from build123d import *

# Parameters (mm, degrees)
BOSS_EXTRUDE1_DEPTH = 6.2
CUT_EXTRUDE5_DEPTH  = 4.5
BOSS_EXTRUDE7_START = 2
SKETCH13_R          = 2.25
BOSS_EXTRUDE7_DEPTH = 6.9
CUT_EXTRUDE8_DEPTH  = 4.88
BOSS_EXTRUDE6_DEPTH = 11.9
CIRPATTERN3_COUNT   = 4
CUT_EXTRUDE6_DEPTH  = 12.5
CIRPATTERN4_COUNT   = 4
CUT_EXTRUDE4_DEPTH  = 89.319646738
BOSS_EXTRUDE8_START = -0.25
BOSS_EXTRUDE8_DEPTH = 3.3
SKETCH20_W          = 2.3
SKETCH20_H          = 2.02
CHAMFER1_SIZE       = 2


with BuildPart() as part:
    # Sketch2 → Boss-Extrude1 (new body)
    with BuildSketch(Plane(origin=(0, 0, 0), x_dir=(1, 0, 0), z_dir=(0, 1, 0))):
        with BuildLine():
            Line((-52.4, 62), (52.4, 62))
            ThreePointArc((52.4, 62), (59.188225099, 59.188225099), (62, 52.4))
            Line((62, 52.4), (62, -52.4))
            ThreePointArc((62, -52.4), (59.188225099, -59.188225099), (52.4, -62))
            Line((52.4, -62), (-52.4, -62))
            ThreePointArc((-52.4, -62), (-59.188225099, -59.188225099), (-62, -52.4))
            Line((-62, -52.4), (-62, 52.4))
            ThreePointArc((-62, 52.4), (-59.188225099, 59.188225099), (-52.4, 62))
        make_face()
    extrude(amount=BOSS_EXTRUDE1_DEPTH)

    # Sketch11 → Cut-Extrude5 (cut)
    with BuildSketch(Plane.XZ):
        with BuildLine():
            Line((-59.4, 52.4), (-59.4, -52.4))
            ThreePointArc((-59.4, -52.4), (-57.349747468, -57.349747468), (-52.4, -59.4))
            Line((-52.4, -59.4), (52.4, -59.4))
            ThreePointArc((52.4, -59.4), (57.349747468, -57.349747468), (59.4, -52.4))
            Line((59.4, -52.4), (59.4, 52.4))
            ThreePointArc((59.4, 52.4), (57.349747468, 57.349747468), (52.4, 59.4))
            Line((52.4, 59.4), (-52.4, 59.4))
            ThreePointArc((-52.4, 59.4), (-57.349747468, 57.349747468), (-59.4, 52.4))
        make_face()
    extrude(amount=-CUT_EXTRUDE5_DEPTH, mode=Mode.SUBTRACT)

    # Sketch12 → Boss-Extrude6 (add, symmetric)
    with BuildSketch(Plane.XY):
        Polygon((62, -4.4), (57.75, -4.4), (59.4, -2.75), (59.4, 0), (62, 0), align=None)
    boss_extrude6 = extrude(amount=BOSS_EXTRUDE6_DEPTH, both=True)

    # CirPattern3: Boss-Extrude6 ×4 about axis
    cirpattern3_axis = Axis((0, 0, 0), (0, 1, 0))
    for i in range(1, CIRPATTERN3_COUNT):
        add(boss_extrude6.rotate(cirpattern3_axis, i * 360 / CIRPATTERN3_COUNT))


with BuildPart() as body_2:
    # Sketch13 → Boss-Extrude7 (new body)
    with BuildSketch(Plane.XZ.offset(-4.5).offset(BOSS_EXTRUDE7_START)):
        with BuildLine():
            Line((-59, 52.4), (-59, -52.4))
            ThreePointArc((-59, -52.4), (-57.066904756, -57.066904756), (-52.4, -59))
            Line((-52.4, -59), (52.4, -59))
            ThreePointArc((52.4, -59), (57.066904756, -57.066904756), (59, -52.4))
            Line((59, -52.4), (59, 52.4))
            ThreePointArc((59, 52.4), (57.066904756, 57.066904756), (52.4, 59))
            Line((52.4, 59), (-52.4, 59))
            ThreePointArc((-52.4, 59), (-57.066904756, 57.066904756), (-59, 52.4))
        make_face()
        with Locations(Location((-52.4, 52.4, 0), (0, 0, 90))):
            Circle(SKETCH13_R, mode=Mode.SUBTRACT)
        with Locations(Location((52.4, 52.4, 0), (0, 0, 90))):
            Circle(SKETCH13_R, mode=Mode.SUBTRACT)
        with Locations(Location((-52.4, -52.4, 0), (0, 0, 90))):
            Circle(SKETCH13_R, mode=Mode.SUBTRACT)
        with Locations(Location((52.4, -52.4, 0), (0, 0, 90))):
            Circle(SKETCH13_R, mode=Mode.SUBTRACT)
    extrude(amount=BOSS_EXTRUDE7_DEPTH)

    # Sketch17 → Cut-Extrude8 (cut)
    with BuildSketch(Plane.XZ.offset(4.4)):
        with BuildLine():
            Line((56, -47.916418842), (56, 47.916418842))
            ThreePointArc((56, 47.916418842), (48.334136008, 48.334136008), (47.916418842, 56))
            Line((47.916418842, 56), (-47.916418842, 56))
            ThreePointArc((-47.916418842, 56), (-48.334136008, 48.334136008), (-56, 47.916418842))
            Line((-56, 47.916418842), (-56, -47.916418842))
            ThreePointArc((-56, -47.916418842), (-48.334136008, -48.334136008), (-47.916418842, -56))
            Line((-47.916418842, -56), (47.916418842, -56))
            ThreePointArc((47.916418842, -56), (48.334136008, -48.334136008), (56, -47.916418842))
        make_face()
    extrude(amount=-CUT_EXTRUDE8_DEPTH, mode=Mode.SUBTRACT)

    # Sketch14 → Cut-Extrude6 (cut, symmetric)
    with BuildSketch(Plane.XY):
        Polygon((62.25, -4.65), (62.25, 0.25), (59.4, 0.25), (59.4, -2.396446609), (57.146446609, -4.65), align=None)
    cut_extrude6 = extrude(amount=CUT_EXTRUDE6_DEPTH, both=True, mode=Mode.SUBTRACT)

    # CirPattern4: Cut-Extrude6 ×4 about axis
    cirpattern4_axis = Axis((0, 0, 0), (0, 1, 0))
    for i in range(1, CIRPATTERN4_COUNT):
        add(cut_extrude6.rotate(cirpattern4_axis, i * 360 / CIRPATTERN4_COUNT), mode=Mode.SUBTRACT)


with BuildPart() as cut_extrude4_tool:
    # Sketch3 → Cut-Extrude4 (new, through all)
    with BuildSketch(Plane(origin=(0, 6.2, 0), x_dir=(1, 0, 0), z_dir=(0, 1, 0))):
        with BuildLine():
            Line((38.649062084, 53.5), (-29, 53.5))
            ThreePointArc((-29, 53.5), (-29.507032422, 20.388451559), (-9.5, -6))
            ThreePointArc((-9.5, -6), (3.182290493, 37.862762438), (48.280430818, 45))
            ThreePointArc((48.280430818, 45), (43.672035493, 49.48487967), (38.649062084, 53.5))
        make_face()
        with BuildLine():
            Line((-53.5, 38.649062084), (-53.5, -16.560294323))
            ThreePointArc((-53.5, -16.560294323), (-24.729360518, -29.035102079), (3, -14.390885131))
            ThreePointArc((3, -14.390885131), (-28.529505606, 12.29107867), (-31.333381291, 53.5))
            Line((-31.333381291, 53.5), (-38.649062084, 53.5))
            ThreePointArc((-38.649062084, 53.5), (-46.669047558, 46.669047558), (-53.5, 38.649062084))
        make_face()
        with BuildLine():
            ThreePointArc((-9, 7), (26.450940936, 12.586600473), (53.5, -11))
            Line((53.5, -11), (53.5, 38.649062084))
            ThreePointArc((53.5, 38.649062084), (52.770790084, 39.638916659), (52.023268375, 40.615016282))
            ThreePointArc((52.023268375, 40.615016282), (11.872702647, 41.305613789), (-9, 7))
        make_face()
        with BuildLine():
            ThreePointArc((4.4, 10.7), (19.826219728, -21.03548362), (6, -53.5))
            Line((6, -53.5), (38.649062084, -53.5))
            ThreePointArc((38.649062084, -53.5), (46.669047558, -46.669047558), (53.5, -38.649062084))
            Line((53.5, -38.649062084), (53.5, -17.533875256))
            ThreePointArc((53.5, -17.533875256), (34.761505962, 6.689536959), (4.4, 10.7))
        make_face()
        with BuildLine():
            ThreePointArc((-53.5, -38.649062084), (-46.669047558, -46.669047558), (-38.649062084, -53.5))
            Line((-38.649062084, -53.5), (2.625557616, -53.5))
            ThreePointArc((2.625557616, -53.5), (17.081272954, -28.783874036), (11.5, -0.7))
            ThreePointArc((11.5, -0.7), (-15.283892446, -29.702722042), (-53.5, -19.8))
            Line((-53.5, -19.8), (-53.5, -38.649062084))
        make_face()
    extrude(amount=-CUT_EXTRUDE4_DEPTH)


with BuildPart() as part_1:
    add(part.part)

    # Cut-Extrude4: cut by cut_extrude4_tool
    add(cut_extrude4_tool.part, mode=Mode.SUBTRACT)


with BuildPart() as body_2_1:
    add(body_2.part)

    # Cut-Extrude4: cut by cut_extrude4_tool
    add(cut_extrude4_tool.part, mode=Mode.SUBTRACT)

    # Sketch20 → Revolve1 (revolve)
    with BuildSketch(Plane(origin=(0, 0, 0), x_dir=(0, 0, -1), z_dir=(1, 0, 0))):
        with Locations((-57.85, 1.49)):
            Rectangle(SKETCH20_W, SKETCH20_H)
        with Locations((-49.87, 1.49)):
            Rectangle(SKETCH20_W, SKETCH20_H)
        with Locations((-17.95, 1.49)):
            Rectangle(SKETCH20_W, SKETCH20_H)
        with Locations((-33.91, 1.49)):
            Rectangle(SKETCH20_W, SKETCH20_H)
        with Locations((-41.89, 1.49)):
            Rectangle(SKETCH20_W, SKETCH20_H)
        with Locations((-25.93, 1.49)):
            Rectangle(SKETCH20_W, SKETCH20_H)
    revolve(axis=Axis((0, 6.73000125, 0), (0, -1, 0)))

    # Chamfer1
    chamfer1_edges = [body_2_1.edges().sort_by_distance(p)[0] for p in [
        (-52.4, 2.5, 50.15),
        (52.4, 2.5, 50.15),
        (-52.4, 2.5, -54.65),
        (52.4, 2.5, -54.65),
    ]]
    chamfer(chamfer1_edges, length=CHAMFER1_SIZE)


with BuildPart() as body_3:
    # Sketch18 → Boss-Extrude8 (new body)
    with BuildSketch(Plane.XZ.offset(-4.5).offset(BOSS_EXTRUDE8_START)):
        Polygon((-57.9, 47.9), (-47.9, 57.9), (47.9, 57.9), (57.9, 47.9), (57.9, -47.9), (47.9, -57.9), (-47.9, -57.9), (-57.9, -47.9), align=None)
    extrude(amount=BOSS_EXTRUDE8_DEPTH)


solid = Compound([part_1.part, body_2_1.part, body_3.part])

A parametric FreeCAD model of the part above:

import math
import FreeCAD as App
import Part
import Sketcher
Q = App.Units.Quantity


def edges_at(feature, points):
    """Names of the edges that pass closest to the given points."""
    edges = feature.Shape.Edges
    near = lambda p: min(range(len(edges)), key=lambda i: edges[i].distToShape(Part.Vertex(*p))[0])
    return sorted({f"Edge{near(p) + 1}" for p in points})

doc = App.newDocument("Part")
body = doc.addObject("PartDesign::Body", "Body")

# Sketch on XZ plane
sketch1 = body.newObject("Sketcher::SketchObject", "Sketch")
sketch1.AttachmentSupport = (doc.getObject("XZ_Plane"), [""])
sketch1.MapMode = "FlatFace"
sketch1.addGeometry([
    Part.LineSegment(App.Vector(52, -62, 0), App.Vector(-52, -62, 0)),  # 0
    Part.ArcOfCircle(Part.Circle(App.Vector(-52, -52, 0), App.Vector(0, 0, 1), 10), math.radians(-180), math.radians(-90)),  # 1
    Part.LineSegment(App.Vector(-62, -52, 0), App.Vector(-62, 52, 0)),  # 2
    Part.ArcOfCircle(Part.Circle(App.Vector(-52, 52, 0), App.Vector(0, 0, 1), 10), math.radians(90), math.radians(180)),  # 3
    Part.LineSegment(App.Vector(-52, 62, 0), App.Vector(52, 62, 0)),  # 4
    Part.ArcOfCircle(Part.Circle(App.Vector(52, 52, 0), App.Vector(0, 0, 1), 10), math.radians(0), math.radians(90)),  # 5
    Part.LineSegment(App.Vector(62, 52, 0), App.Vector(62, -52, 0)),  # 6
    Part.ArcOfCircle(Part.Circle(App.Vector(52, -52, 0), App.Vector(0, 0, 1), 10), math.radians(-90), math.radians(0)),  # 7
], False)
sketch1.addConstraint([
    Sketcher.Constraint("Tangent", 0, 2, 1, 2),
    Sketcher.Constraint("Tangent", 1, 1, 2, 1),
    Sketcher.Constraint("Tangent", 2, 2, 3, 2),
    Sketcher.Constraint("Tangent", 3, 1, 4, 1),
    Sketcher.Constraint("Tangent", 4, 2, 5, 2),
    Sketcher.Constraint("Tangent", 5, 1, 6, 1),
    Sketcher.Constraint("Tangent", 6, 2, 7, 2),
    Sketcher.Constraint("Tangent", 7, 1, 0, 1),
    Sketcher.Constraint("Horizontal", 0),
    Sketcher.Constraint("Vertical", 2),
    Sketcher.Constraint("Horizontal", 4),
    Sketcher.Constraint("Vertical", 6),
    Sketcher.Constraint("Equal", 1, 3),
    Sketcher.Constraint("Equal", 3, 5),
    Sketcher.Constraint("Equal", 5, 7),
    Sketcher.Constraint("Symmetric", 1, 3, 5, 3, -1, 1),
    Sketcher.Constraint("Equal", 4, 2),
    Sketcher.Constraint("Radius", 1, 9.6),
    Sketcher.Constraint("DistanceX", 0, 2, 0, 1, 104.8),
])
pad1 = body.newObject("PartDesign::Pad", "Pad")
pad1.Profile = sketch1
pad1.Length = 6.2
pad1.Reversed = True

# Sketch on XZ plane
sketch2 = body.newObject("Sketcher::SketchObject", "Sketch001")
sketch2.AttachmentSupport = (doc.getObject("XZ_Plane"), [""])
sketch2.MapMode = "FlatFace"
sketch2.addGeometry([
    Part.LineSegment(App.Vector(-59, 52, 0), App.Vector(-59, -52, 0)),  # 0
    Part.ArcOfCircle(Part.Circle(App.Vector(-52, -52, 0), App.Vector(0, 0, 1), 7), math.radians(-180), math.radians(-90)),  # 1
    Part.LineSegment(App.Vector(-52, -59, 0), App.Vector(52, -59, 0)),  # 2
    Part.ArcOfCircle(Part.Circle(App.Vector(52, -52, 0), App.Vector(0, 0, 1), 7), math.radians(-90), math.radians(0)),  # 3
    Part.LineSegment(App.Vector(59, -52, 0), App.Vector(59, 52, 0)),  # 4
    Part.ArcOfCircle(Part.Circle(App.Vector(52, 52, 0), App.Vector(0, 0, 1), 7), math.radians(0), math.radians(90)),  # 5
    Part.LineSegment(App.Vector(52, 59, 0), App.Vector(-52, 59, 0)),  # 6
    Part.ArcOfCircle(Part.Circle(App.Vector(-52, 52, 0), App.Vector(0, 0, 1), 7), math.radians(90), math.radians(180)),  # 7
], False)
sketch2.addConstraint([
    Sketcher.Constraint("Tangent", 0, 2, 1, 1),
    Sketcher.Constraint("Tangent", 1, 2, 2, 1),
    Sketcher.Constraint("Tangent", 2, 2, 3, 1),
    Sketcher.Constraint("Tangent", 3, 2, 4, 1),
    Sketcher.Constraint("Tangent", 4, 2, 5, 1),
    Sketcher.Constraint("Tangent", 5, 2, 6, 1),
    Sketcher.Constraint("Tangent", 6, 2, 7, 1),
    Sketcher.Constraint("Tangent", 7, 2, 0, 1),
    Sketcher.Constraint("Vertical", 0),
    Sketcher.Constraint("Horizontal", 2),
    Sketcher.Constraint("Vertical", 4),
    Sketcher.Constraint("Horizontal", 6),
    Sketcher.Constraint("Equal", 1, 3),
    Sketcher.Constraint("Equal", 3, 5),
    Sketcher.Constraint("Equal", 5, 7),
    Sketcher.Constraint("Symmetric", 1, 3, 5, 3, -1, 1),
    Sketcher.Constraint("Equal", 6, 0),
    Sketcher.Constraint("Radius", 1, 7.0),
    Sketcher.Constraint("DistanceX", 2, 1, 2, 2, 104.8),
])
pocket1 = body.newObject("PartDesign::Pocket", "Pocket")
pocket1.Profile = sketch2
pocket1.Length = 4.5

# Sketch on XY plane
sketch3 = body.newObject("Sketcher::SketchObject", "Sketch002")
sketch3.AttachmentSupport = (doc.getObject("XY_Plane"), [""])
sketch3.MapMode = "FlatFace"
sketch3.addGeometry([
    Part.LineSegment(App.Vector(57.8, -4.4, 0), App.Vector(62, -4.4, 0)),  # 0
    Part.LineSegment(App.Vector(62, -4.4, 0), App.Vector(62, 0, 0)),  # 1
    Part.LineSegment(App.Vector(62, 0, 0), App.Vector(59.4, 0, 0)),  # 2
    Part.LineSegment(App.Vector(59.4, 0, 0), App.Vector(59.4, -2.8, 0)),  # 3
    Part.LineSegment(App.Vector(59.4, -2.8, 0), App.Vector(57.8, -4.4, 0)),  # 4
], False)
sketch3.addConstraint([
    Sketcher.Constraint("Coincident", 0, 2, 1, 1),
    Sketcher.Constraint("Coincident", 1, 2, 2, 1),
    Sketcher.Constraint("Coincident", 2, 2, 3, 1),
    Sketcher.Constraint("Coincident", 3, 2, 4, 1),
    Sketcher.Constraint("Coincident", 4, 2, 0, 1),
    Sketcher.Constraint("Horizontal", 0),
    Sketcher.Constraint("Vertical", 1),
    Sketcher.Constraint("Horizontal", 2),
    Sketcher.Constraint("Vertical", 3),
    Sketcher.Constraint("PointOnObject", 1, 2, -1),
    Sketcher.Constraint("Angle", 4, Q("-135 deg")),
    Sketcher.Constraint("DistanceX", 2, 2, 2, 1, 2.6),
    Sketcher.Constraint("DistanceY", 1, 1, 1, 2, 4.4),
    Sketcher.Constraint("DistanceX", -1, 1, 0, 2, 62.0),
    Sketcher.Constraint("DistanceX", 0, 1, 0, 2, 4.25),
])
pad2 = body.newObject("PartDesign::Pad", "Pad001")
pad2.Profile = sketch3
pad2.Length = 23.8
pad2.Midplane = True
doc.recompute()

polarpattern = body.newObject("PartDesign::PolarPattern", "PolarPattern")
polarpattern.Originals = [pad2]
polarpattern.Axis = (doc.getObject("Y_Axis"), [""])
polarpattern.Angle = 360
polarpattern.Occurrences = 4
body.Tip = polarpattern
body2 = doc.addObject("PartDesign::Body", "Body001")

# Sketch on XZ plane
sketch4 = body2.newObject("Sketcher::SketchObject", "Sketch003")
sketch4.AttachmentSupport = (doc.getObject("XZ_Plane001"), [""])
sketch4.MapMode = "FlatFace"
sketch4.AttachmentOffset = App.Placement(App.Vector(0, 0, -2.5), App.Rotation())
sketch4.addGeometry([
    Part.LineSegment(App.Vector(-59, 52.4, 0), App.Vector(-59, -52.4, 0)),  # 0
    Part.ArcOfCircle(Part.Circle(App.Vector(-52.4, -52.4, 0), App.Vector(0, 0, 1), 6.6), math.radians(180), math.radians(270)),  # 1
    Part.LineSegment(App.Vector(-52.4, -59, 0), App.Vector(52.4, -59, 0)),  # 2
    Part.ArcOfCircle(Part.Circle(App.Vector(52.4, -52.4, 0), App.Vector(0, 0, 1), 6.6), math.radians(-90), math.radians(0)),  # 3
    Part.LineSegment(App.Vector(59, -52.4, 0), App.Vector(59, 52.4, 0)),  # 4
    Part.ArcOfCircle(Part.Circle(App.Vector(52.4, 52.4, 0), App.Vector(0, 0, 1), 6.6), math.radians(0), math.radians(90)),  # 5
    Part.LineSegment(App.Vector(52.4, 59, 0), App.Vector(-52.4, 59, 0)),  # 6
    Part.ArcOfCircle(Part.Circle(App.Vector(-52.4, 52.4, 0), App.Vector(0, 0, 1), 6.6), math.radians(90), math.radians(180)),  # 7
    Part.Circle(App.Vector(-52.4, -52.4, 0), App.Vector(0, 0, 1), 2.2),  # 8
    Part.Circle(App.Vector(52.4, -52.4, 0), App.Vector(0, 0, 1), 2.2),  # 9
    Part.Circle(App.Vector(-52.4, 52.4, 0), App.Vector(0, 0, 1), 2.2),  # 10
    Part.Circle(App.Vector(52.4, 52.4, 0), App.Vector(0, 0, 1), 2.2),  # 11
], False)
sketch4.addConstraint([
    Sketcher.Constraint("Tangent", 0, 2, 1, 1),
    Sketcher.Constraint("Tangent", 1, 2, 2, 1),
    Sketcher.Constraint("Tangent", 2, 2, 3, 1),
    Sketcher.Constraint("Tangent", 3, 2, 4, 1),
    Sketcher.Constraint("Tangent", 4, 2, 5, 1),
    Sketcher.Constraint("Tangent", 5, 2, 6, 1),
    Sketcher.Constraint("Tangent", 6, 2, 7, 1),
    Sketcher.Constraint("Tangent", 7, 2, 0, 1),
    Sketcher.Constraint("Vertical", 0),
    Sketcher.Constraint("Horizontal", 2),
    Sketcher.Constraint("Vertical", 4),
    Sketcher.Constraint("Horizontal", 6),
    Sketcher.Constraint("Coincident", 8, 3, 1, 3),
    Sketcher.Constraint("Coincident", 9, 3, 3, 3),
    Sketcher.Constraint("Coincident", 10, 3, 7, 3),
    Sketcher.Constraint("Coincident", 11, 3, 5, 3),
    Sketcher.Constraint("Equal", 1, 3),
    Sketcher.Constraint("Equal", 3, 5),
    Sketcher.Constraint("Equal", 5, 7),
    Sketcher.Constraint("Equal", 8, 9),
    Sketcher.Constraint("Equal", 9, 10),
    Sketcher.Constraint("Equal", 10, 11),
    Sketcher.Constraint("Symmetric", 1, 3, 5, 3, -1, 1),
    Sketcher.Constraint("Equal", 6, 0),
    Sketcher.Constraint("Diameter", 8, 4.5),
    Sketcher.Constraint("Radius", 1, 6.6),
    Sketcher.Constraint("DistanceX", 2, 1, 2, 2, 104.8),
])
pad3 = body2.newObject("PartDesign::Pad", "Pad002")
pad3.Profile = sketch4
pad3.Length = 6.9

# Sketch on XZ plane
sketch5 = body2.newObject("Sketcher::SketchObject", "Sketch004")
sketch5.AttachmentSupport = (doc.getObject("XZ_Plane001"), [""])
sketch5.MapMode = "FlatFace"
sketch5.AttachmentOffset = App.Placement(App.Vector(0, 0, 4.4), App.Rotation())
sketch5.addGeometry([
    Part.LineSegment(App.Vector(56, -48, 0), App.Vector(56, 48, 0)),  # 0
    Part.ArcOfCircle(Part.Circle(App.Vector(52, 52, 0), App.Vector(0, 0, 1), 6), math.radians(141), math.radians(309)),  # 1
    Part.LineSegment(App.Vector(48, 56, 0), App.Vector(-48, 56, 0)),  # 2
    Part.ArcOfCircle(Part.Circle(App.Vector(-52, 52, 0), App.Vector(0, 0, 1), 6), math.radians(-129), math.radians(39)),  # 3
    Part.LineSegment(App.Vector(-56, 48, 0), App.Vector(-56, -48, 0)),  # 4
    Part.ArcOfCircle(Part.Circle(App.Vector(-52, -52, 0), App.Vector(0, 0, 1), 6), math.radians(-39), math.radians(129)),  # 5
    Part.LineSegment(App.Vector(-48, -56, 0), App.Vector(48, -56, 0)),  # 6
    Part.ArcOfCircle(Part.Circle(App.Vector(52, -52, 0), App.Vector(0, 0, 1), 6), math.radians(51), math.radians(219)),  # 7
], False)
sketch5.addConstraint([
    Sketcher.Constraint("Coincident", 0, 2, 1, 2),
    Sketcher.Constraint("Coincident", 1, 1, 2, 1),
    Sketcher.Constraint("Coincident", 2, 2, 3, 2),
    Sketcher.Constraint("Coincident", 3, 1, 4, 1),
    Sketcher.Constraint("Coincident", 4, 2, 5, 2),
    Sketcher.Constraint("Coincident", 5, 1, 6, 1),
    Sketcher.Constraint("Coincident", 6, 2, 7, 2),
    Sketcher.Constraint("Coincident", 7, 1, 0, 1),
    Sketcher.Constraint("Vertical", 0),
    Sketcher.Constraint("Horizontal", 2),
    Sketcher.Constraint("Vertical", 4),
    Sketcher.Constraint("Horizontal", 6),
    Sketcher.Constraint("Equal", 1, 3),
    Sketcher.Constraint("Equal", 3, 5),
    Sketcher.Constraint("Equal", 5, 7),
    Sketcher.Constraint("Symmetric", 1, 3, 5, 3, -1, 1),
    Sketcher.Constraint("Symmetric", 3, 3, 7, 3, -1, 1),
    Sketcher.Constraint("Symmetric", 1, 3, 3, 3, -2),
    Sketcher.Constraint("Horizontal", 0, 2, 3, 1),
    Sketcher.Constraint("Vertical", 2, 2, 5, 1),
    Sketcher.Constraint("Equal", 6, 0),
    Sketcher.Constraint("Radius", 1, 5.75),
    Sketcher.Constraint("DistanceX", -1, 1, 0, 2, 56.0),
    Sketcher.Constraint("DistanceY", -1, 1, 1, 1, 56.0),
    Sketcher.Constraint("DistanceX", -1, 1, 1, 3, 52.4),
])
pocket2 = body2.newObject("PartDesign::Pocket", "Pocket001")
pocket2.Profile = sketch5
pocket2.Length = 4.88

# Sketch on XY plane
sketch6 = body2.newObject("Sketcher::SketchObject", "Sketch005")
sketch6.AttachmentSupport = (doc.getObject("XY_Plane001"), [""])
sketch6.MapMode = "FlatFace"
sketch6.addGeometry([
    Part.LineSegment(App.Vector(62.2, -4.7, 0), App.Vector(62.2, 0.2, 0)),  # 0
    Part.LineSegment(App.Vector(62.2, 0.2, 0), App.Vector(59.4, 0.2, 0)),  # 1
    Part.LineSegment(App.Vector(59.4, 0.2, 0), App.Vector(59.4, -2.4, 0)),  # 2
    Part.LineSegment(App.Vector(59.4, -2.4, 0), App.Vector(57.1, -4.7, 0)),  # 3
    Part.LineSegment(App.Vector(57.1, -4.7, 0), App.Vector(62.2, -4.7, 0)),  # 4
], False)
sketch6.addConstraint([
    Sketcher.Constraint("Coincident", 0, 2, 1, 1),
    Sketcher.Constraint("Coincident", 1, 2, 2, 1),
    Sketcher.Constraint("Coincident", 2, 2, 3, 1),
    Sketcher.Constraint("Coincident", 3, 2, 4, 1),
    Sketcher.Constraint("Coincident", 4, 2, 0, 1),
    Sketcher.Constraint("Vertical", 0),
    Sketcher.Constraint("Horizontal", 1),
    Sketcher.Constraint("Vertical", 2),
    Sketcher.Constraint("Horizontal", 4),
    Sketcher.Constraint("Angle", 3, Q("-135 deg")),
    Sketcher.Constraint("DistanceY", 0, 1, 0, 2, 4.9),
    Sketcher.Constraint("DistanceX", 1, 2, 1, 1, 2.85),
    Sketcher.Constraint("DistanceX", -1, 1, 1, 2, 59.4),
    Sketcher.Constraint("DistanceY", -1, 1, 0, 2, 0.25),
    Sketcher.Constraint("DistanceX", 4, 1, 4, 2, 5.103553),
])
pocket3 = body2.newObject("PartDesign::Pocket", "Pocket002")
pocket3.Profile = sketch6
pocket3.Length = 25
pocket3.Midplane = True
doc.recompute()

polarpattern2 = body2.newObject("PartDesign::PolarPattern", "PolarPattern001")
polarpattern2.Originals = [pocket3]
polarpattern2.Axis = (doc.getObject("Y_Axis001"), [""])
polarpattern2.Angle = 360
polarpattern2.Occurrences = 4
body2.Tip = polarpattern2
body3 = doc.addObject("PartDesign::Body", "Body002")
body3.AllowCompound = True

# Sketch on XZ plane
sketch7 = body3.newObject("Sketcher::SketchObject", "Sketch006")
sketch7.AttachmentSupport = (doc.getObject("XZ_Plane002"), [""])
sketch7.MapMode = "FlatFace"
sketch7.AttachmentOffset = App.Placement(App.Vector(0, 0, -6.2), App.Rotation())
sketch7.addGeometry([
    Part.LineSegment(App.Vector(38.6, -53.5, 0), App.Vector(-29, -53.5, 0)),  # 0
    Part.ArcOfCircle(Part.Circle(App.Vector(18.8, -36.2, 0), App.Vector(0, 0, 1), 50.8), math.radians(124), math.radians(200)),  # 1
    Part.ArcOfCircle(Part.Circle(App.Vector(31.3, -6, 0), App.Vector(0, 0, 1), 42.6), math.radians(164), math.radians(293)),  # 2
    Part.ArcOfCircle(Part.Circle(App.Vector(0, 0, 0), App.Vector(0, 0, 1), 66), math.radians(-54.16), math.radians(-42.99)),  # 3
    Part.LineSegment(App.Vector(-53.5, -38.6, 0), App.Vector(-53.5, 16.6, 0)),  # 4
    Part.ArcOfCircle(Part.Circle(App.Vector(-26.1, -7.2, 0), App.Vector(0, 0, 1), 36.2), math.radians(37), math.radians(139)),  # 5
    Part.ArcOfCircle(Part.Circle(App.Vector(18.8, -36.2, 0), App.Vector(0, 0, 1), 53), math.radians(107), math.radians(199)),  # 6
    Part.LineSegment(App.Vector(-31.3, -53.5, 0), App.Vector(-38.6, -53.5, 0)),  # 7
    Part.ArcOfCircle(Part.Circle(App.Vector(0, 0, 0), App.Vector(0, 0, 1), 66), math.radians(-144.16), math.radians(-125.84)),  # 8
    Part.ArcOfCircle(Part.Circle(App.Vector(14.7, 28.2, 0), App.Vector(0, 0, 1), 42.4), math.radians(-124), math.radians(-24)),  # 9
    Part.LineSegment(App.Vector(53.5, 11, 0), App.Vector(53.5, -38.6, 0)),  # 10
    Part.ArcOfCircle(Part.Circle(App.Vector(0, 0, 0), App.Vector(0, 0, 1), 66), math.radians(-37.98), math.radians(-35.84)),  # 11
    Part.ArcOfCircle(Part.Circle(App.Vector(31.3, -6, 0), App.Vector(0, 0, 1), 40.4), math.radians(-179), math.radians(-59)),  # 12
    Part.ArcOfCircle(Part.Circle(App.Vector(-22.7, 22.1, 0), App.Vector(0, 0, 1), 42.6), math.radians(-50), math.radians(48)),  # 13
    Part.LineSegment(App.Vector(6, 53.5, 0), App.Vector(38.6, 53.5, 0)),  # 14
    Part.ArcOfCircle(Part.Circle(App.Vector(0, 0, 0), App.Vector(0, 0, 1), 66), math.radians(35.84), math.radians(54.16)),  # 15
    Part.LineSegment(App.Vector(53.5, 38.6, 0), App.Vector(53.5, 17.5, 0)),  # 16
    Part.ArcOfCircle(Part.Circle(App.Vector(14.7, 28.2, 0), App.Vector(0, 0, 1), 40.2), math.radians(-105), math.radians(-15)),  # 17
    Part.ArcOfCircle(Part.Circle(App.Vector(0, 0, 0), App.Vector(0, 0, 1), 66), math.radians(125.84), math.radians(144.16)),  # 18
    Part.LineSegment(App.Vector(-38.6, 53.5, 0), App.Vector(2.6, 53.5, 0)),  # 19
    Part.ArcOfCircle(Part.Circle(App.Vector(-22.7, 22.1, 0), App.Vector(0, 0, 1), 40.4), math.radians(-32), math.radians(51)),  # 20
    Part.ArcOfCircle(Part.Circle(App.Vector(-26.1, -7.2, 0), App.Vector(0, 0, 1), 38.4), math.radians(12), math.radians(135)),  # 21
    Part.LineSegment(App.Vector(-53.5, 19.8, 0), App.Vector(-53.5, 38.6, 0)),  # 22
], False)
sketch7.addConstraint([
    Sketcher.Constraint("Coincident", 0, 2, 1, 2),
    Sketcher.Constraint("Coincident", 1, 1, 2, 1),
    Sketcher.Constraint("Coincident", 2, 2, 3, 2),
    Sketcher.Constraint("Coincident", 3, 1, 0, 1),
    Sketcher.Constraint("Coincident", 4, 2, 5, 2),
    Sketcher.Constraint("Coincident", 5, 1, 6, 1),
    Sketcher.Constraint("Coincident", 6, 2, 7, 1),
    Sketcher.Constraint("Coincident", 7, 2, 8, 2),
    Sketcher.Constraint("Coincident", 8, 1, 4, 1),
    Sketcher.Constraint("Coincident", 9, 2, 10, 1),
    Sketcher.Constraint("Coincident", 10, 2, 11, 2),
    Sketcher.Constraint("Coincident", 11, 1, 12, 2),
    Sketcher.Constraint("Coincident", 12, 1, 9, 1),
    Sketcher.Constraint("Coincident", 13, 2, 14, 1),
    Sketcher.Constraint("Coincident", 14, 2, 15, 2),
    Sketcher.Constraint("Coincident", 15, 1, 16, 1),
    Sketcher.Constraint("Coincident", 16, 2, 17, 2),
    Sketcher.Constraint("Coincident", 17, 1, 13, 1),
    Sketcher.Constraint("Coincident", 18, 1, 19, 1),
    Sketcher.Constraint("Coincident", 19, 2, 20, 2),
    Sketcher.Constraint("Coincident", 20, 1, 21, 1),
    Sketcher.Constraint("Coincident", 21, 2, 22, 1),
    Sketcher.Constraint("Coincident", 22, 2, 18, 2),
    Sketcher.Constraint("Horizontal", 0),
    Sketcher.Constraint("Vertical", 4),
    Sketcher.Constraint("Horizontal", 7),
    Sketcher.Constraint("Vertical", 10),
    Sketcher.Constraint("Horizontal", 14),
    Sketcher.Constraint("Vertical", 16),
    Sketcher.Constraint("Horizontal", 19),
    Sketcher.Constraint("Vertical", 22),
    Sketcher.Constraint("Coincident", 3, 3, -1, 1),
    Sketcher.Constraint("Coincident", 8, 3, -1, 1),
    Sketcher.Constraint("Coincident", 11, 3, -1, 1),
    Sketcher.Constraint("Coincident", 15, 3, -1, 1),
    Sketcher.Constraint("Coincident", 18, 3, -1, 1),
    Sketcher.Constraint("Coincident", 6, 3, 1, 3),
    Sketcher.Constraint("Coincident", 12, 3, 2, 3),
    Sketcher.Constraint("Coincident", 17, 3, 9, 3),
    Sketcher.Constraint("Coincident", 20, 3, 13, 3),
    Sketcher.Constraint("Coincident", 21, 3, 5, 3),
    Sketcher.Constraint("Equal", 3, 8),
    Sketcher.Constraint("Equal", 8, 11),
    Sketcher.Constraint("Equal", 11, 15),
    Sketcher.Constraint("Equal", 15, 18),
    Sketcher.Constraint("Horizontal", 3, 1, 6, 2),
    Sketcher.Constraint("Horizontal", 8, 1, 10, 2),
    Sketcher.Constraint("Horizontal", 14, 2, 18, 1),
    Sketcher.Constraint("Horizontal", 15, 1, 22, 2),
    Sketcher.Constraint("Vertical", 3, 1, 14, 2),
    Sketcher.Constraint("Vertical", 10, 2, 15, 1),
    Sketcher.Constraint("Radius", 3, 66.0),
    Sketcher.Constraint("DistanceX", 0, 2, -1, 1, 29.0),
    Sketcher.Constraint("DistanceY", -1, 1, 1, 1, 6.0),
    Sketcher.Constraint("DistanceY", 2, 2, -1, 1, 45.0),
    Sketcher.Constraint("DistanceX", -1, 1, 5, 1, 3.0),
    Sketcher.Constraint("DistanceY", -1, 1, 9, 2, 11.0),
    Sketcher.Constraint("DistanceX", 12, 1, -1, 1, 9.0),
    Sketcher.Constraint("DistanceY", 12, 1, -1, 1, 7.0),
    Sketcher.Constraint("DistanceX", -1, 1, 13, 2, 6.0),
    Sketcher.Constraint("DistanceX", 4, 2, 1, 1, 44.0),
    Sketcher.Constraint("DistanceY", 0, 2, -1, 1, 53.5),
    Sketcher.Constraint("DistanceX", 1, 1, -1, 1, 9.5),
    Sketcher.Constraint("DistanceX", -1, 1, 17, 1, 4.4),
    Sketcher.Constraint("DistanceY", 17, 1, -1, 1, 10.7),
    Sketcher.Constraint("DistanceX", -1, 1, 20, 1, 11.5),
    Sketcher.Constraint("DistanceY", -1, 1, 20, 1, 0.7),
    Sketcher.Constraint("DistanceY", -1, 1, 21, 2, 19.8),
    Sketcher.Constraint("Radius", 1, 50.799018),
    Sketcher.Constraint("Radius", 2, 42.55942),
    Sketcher.Constraint("Radius", 5, 36.234579),
    Sketcher.Constraint("Radius", 6, 52.999018),
    Sketcher.Constraint("Radius", 9, 42.424996),
    Sketcher.Constraint("Radius", 13, 42.551073),
])
pad4 = body3.newObject("PartDesign::Pad", "Pad003")
pad4.Profile = sketch7
pad4.Length = 89.319647
doc.recompute()

body4 = doc.addObject("PartDesign::Body", "Body003")
body4.BaseFeature = body3
boolean = body.newObject("PartDesign::Boolean", "Boolean")
boolean.Type = "Cut"
boolean.addObjects([body4])
doc.recompute()

boolean2 = body2.newObject("PartDesign::Boolean", "Boolean001")
boolean2.Type = "Cut"
boolean2.addObjects([body3])

# Sketch on YZ plane
sketch8 = body2.newObject("Sketcher::SketchObject", "Sketch007")
sketch8.AttachmentSupport = (doc.getObject("YZ_Plane001"), [""])
sketch8.MapMode = "FlatFace"
sketch8.addGeometry([
    Part.LineSegment(App.Vector(2.5, 59, 0), App.Vector(0.5, 59, 0)),  # 0
    Part.LineSegment(App.Vector(0.5, 59, 0), App.Vector(0.5, 56.7, 0)),  # 1
    Part.LineSegment(App.Vector(0.5, 56.7, 0), App.Vector(2.5, 56.7, 0)),  # 2
    Part.LineSegment(App.Vector(2.5, 56.7, 0), App.Vector(2.5, 59, 0)),  # 3
    Part.LineSegment(App.Vector(2.5, 51, 0), App.Vector(0.5, 51, 0)),  # 4
    Part.LineSegment(App.Vector(0.5, 51, 0), App.Vector(0.5, 48.7, 0)),  # 5
    Part.LineSegment(App.Vector(0.5, 48.7, 0), App.Vector(2.5, 48.7, 0)),  # 6
    Part.LineSegment(App.Vector(2.5, 48.7, 0), App.Vector(2.5, 51, 0)),  # 7
    Part.LineSegment(App.Vector(2.5, 19.1, 0), App.Vector(0.5, 19.1, 0)),  # 8
    Part.LineSegment(App.Vector(0.5, 19.1, 0), App.Vector(0.5, 16.8, 0)),  # 9
    Part.LineSegment(App.Vector(0.5, 16.8, 0), App.Vector(2.5, 16.8, 0)),  # 10
    Part.LineSegment(App.Vector(2.5, 16.8, 0), App.Vector(2.5, 19.1, 0)),  # 11
    Part.LineSegment(App.Vector(2.5, 35.1, 0), App.Vector(0.5, 35.1, 0)),  # 12
    Part.LineSegment(App.Vector(0.5, 35.1, 0), App.Vector(0.5, 32.8, 0)),  # 13
    Part.LineSegment(App.Vector(0.5, 32.8, 0), App.Vector(2.5, 32.8, 0)),  # 14
    Part.LineSegment(App.Vector(2.5, 32.8, 0), App.Vector(2.5, 35.1, 0)),  # 15
    Part.LineSegment(App.Vector(2.5, 43, 0), App.Vector(0.5, 43, 0)),  # 16
    Part.LineSegment(App.Vector(0.5, 43, 0), App.Vector(0.5, 40.7, 0)),  # 17
    Part.LineSegment(App.Vector(0.5, 40.7, 0), App.Vector(2.5, 40.7, 0)),  # 18
    Part.LineSegment(App.Vector(2.5, 40.7, 0), App.Vector(2.5, 43, 0)),  # 19
    Part.LineSegment(App.Vector(2.5, 27.1, 0), App.Vector(0.5, 27.1, 0)),  # 20
    Part.LineSegment(App.Vector(0.5, 27.1, 0), App.Vector(0.5, 24.8, 0)),  # 21
    Part.LineSegment(App.Vector(0.5, 24.8, 0), App.Vector(2.5, 24.8, 0)),  # 22
    Part.LineSegment(App.Vector(2.5, 24.8, 0), App.Vector(2.5, 27.1, 0)),  # 23
], False)
sketch8.addConstraint([
    Sketcher.Constraint("Coincident", 0, 2, 1, 1),
    Sketcher.Constraint("Coincident", 1, 2, 2, 1),
    Sketcher.Constraint("Coincident", 2, 2, 3, 1),
    Sketcher.Constraint("Coincident", 3, 2, 0, 1),
    Sketcher.Constraint("Coincident", 4, 2, 5, 1),
    Sketcher.Constraint("Coincident", 5, 2, 6, 1),
    Sketcher.Constraint("Coincident", 6, 2, 7, 1),
    Sketcher.Constraint("Coincident", 7, 2, 4, 1),
    Sketcher.Constraint("Coincident", 8, 2, 9, 1),
    Sketcher.Constraint("Coincident", 9, 2, 10, 1),
    Sketcher.Constraint("Coincident", 10, 2, 11, 1),
    Sketcher.Constraint("Coincident", 11, 2, 8, 1),
    Sketcher.Constraint("Coincident", 12, 2, 13, 1),
    Sketcher.Constraint("Coincident", 13, 2, 14, 1),
    Sketcher.Constraint("Coincident", 14, 2, 15, 1),
    Sketcher.Constraint("Coincident", 15, 2, 12, 1),
    Sketcher.Constraint("Coincident", 16, 2, 17, 1),
    Sketcher.Constraint("Coincident", 17, 2, 18, 1),
    Sketcher.Constraint("Coincident", 18, 2, 19, 1),
    Sketcher.Constraint("Coincident", 19, 2, 16, 1),
    Sketcher.Constraint("Coincident", 20, 2, 21, 1),
    Sketcher.Constraint("Coincident", 21, 2, 22, 1),
    Sketcher.Constraint("Coincident", 22, 2, 23, 1),
    Sketcher.Constraint("Coincident", 23, 2, 20, 1),
    Sketcher.Constraint("Horizontal", 0),
    Sketcher.Constraint("Vertical", 1),
    Sketcher.Constraint("Horizontal", 2),
    Sketcher.Constraint("Vertical", 3),
    Sketcher.Constraint("Horizontal", 4),
    Sketcher.Constraint("Vertical", 5),
    Sketcher.Constraint("Horizontal", 6),
    Sketcher.Constraint("Vertical", 7),
    Sketcher.Constraint("Horizontal", 8),
    Sketcher.Constraint("Vertical", 9),
    Sketcher.Constraint("Horizontal", 10),
    Sketcher.Constraint("Vertical", 11),
    Sketcher.Constraint("Horizontal", 12),
    Sketcher.Constraint("Vertical", 13),
    Sketcher.Constraint("Horizontal", 14),
    Sketcher.Constraint("Vertical", 15),
    Sketcher.Constraint("Horizontal", 16),
    Sketcher.Constraint("Vertical", 17),
    Sketcher.Constraint("Horizontal", 18),
    Sketcher.Constraint("Vertical", 19),
    Sketcher.Constraint("Horizontal", 20),
    Sketcher.Constraint("Vertical", 21),
    Sketcher.Constraint("Horizontal", 22),
    Sketcher.Constraint("Vertical", 23),
    Sketcher.Constraint("Vertical", 1, 2, 4, 2),
    Sketcher.Constraint("Vertical", 3, 2, 6, 2),
    Sketcher.Constraint("Vertical", 5, 2, 8, 2),
    Sketcher.Constraint("Vertical", 7, 2, 10, 2),
    Sketcher.Constraint("Vertical", 9, 2, 12, 2),
    Sketcher.Constraint("Vertical", 11, 2, 14, 2),
    Sketcher.Constraint("Vertical", 13, 2, 16, 2),
    Sketcher.Constraint("Vertical", 15, 2, 18, 2),
    Sketcher.Constraint("Vertical", 17, 2, 20, 2),
    Sketcher.Constraint("Vertical", 19, 2, 22, 2),
    Sketcher.Constraint("Equal", 3, 5),
    Sketcher.Constraint("Equal", 7, 9),
    Sketcher.Constraint("Equal", 11, 13),
    Sketcher.Constraint("Equal", 15, 17),
    Sketcher.Constraint("Equal", 19, 21),
    Sketcher.Constraint("DistanceY", 1, 2, 1, 1, 2.3),
    Sketcher.Constraint("DistanceY", -1, 1, 0, 2, 59.0),
    Sketcher.Constraint("DistanceX", 0, 2, 0, 1, 2.02),
    Sketcher.Constraint("DistanceX", -1, 1, 2, 2, 2.5),
    Sketcher.Constraint("DistanceY", -1, 1, 8, 2, 19.1),
    Sketcher.Constraint("DistanceY", -1, 1, 4, 2, 51.02),
    Sketcher.Constraint("DistanceY", -1, 1, 12, 2, 35.06),
    Sketcher.Constraint("DistanceY", -1, 1, 16, 2, 43.04),
    Sketcher.Constraint("DistanceY", -1, 1, 20, 2, 27.08),
])
revolution = body2.newObject("PartDesign::Revolution", "Revolution")
revolution.Profile = sketch8
revolution.ReferenceAxis = (sketch8, ["H_Axis"])
revolution.Angle = 360
doc.recompute()

chamfer = body2.newObject("PartDesign::Chamfer", "Chamfer")
chamfer.Base = (revolution, edges_at(revolution, [
    (-52.4, 2.5, 50.15),
    (52.4, 2.5, 50.15),
    (-52.4, 2.5, -54.65),
    (52.4, 2.5, -54.65),
]))
chamfer.Size = 2
body5 = doc.addObject("PartDesign::Body", "Body004")

# Sketch on XZ plane
sketch9 = body5.newObject("Sketcher::SketchObject", "Sketch008")
sketch9.AttachmentSupport = (doc.getObject("XZ_Plane004"), [""])
sketch9.MapMode = "FlatFace"
sketch9.AttachmentOffset = App.Placement(App.Vector(0, 0, -4.75), App.Rotation())
sketch9.addGeometry([
    Part.LineSegment(App.Vector(-48, 58, 0), App.Vector(-58, 48, 0)),  # 0
    Part.LineSegment(App.Vector(-58, 48, 0), App.Vector(-58, -48, 0)),  # 1
    Part.LineSegment(App.Vector(-58, -48, 0), App.Vector(-48, -58, 0)),  # 2
    Part.LineSegment(App.Vector(-48, -58, 0), App.Vector(48, -58, 0)),  # 3
    Part.LineSegment(App.Vector(48, -58, 0), App.Vector(58, -48, 0)),  # 4
    Part.LineSegment(App.Vector(58, -48, 0), App.Vector(58, 48, 0)),  # 5
    Part.LineSegment(App.Vector(58, 48, 0), App.Vector(48, 58, 0)),  # 6
    Part.LineSegment(App.Vector(48, 58, 0), App.Vector(-48, 58, 0)),  # 7
], False)
sketch9.addConstraint([
    Sketcher.Constraint("Coincident", 0, 2, 1, 1),
    Sketcher.Constraint("Coincident", 1, 2, 2, 1),
    Sketcher.Constraint("Coincident", 2, 2, 3, 1),
    Sketcher.Constraint("Coincident", 3, 2, 4, 1),
    Sketcher.Constraint("Coincident", 4, 2, 5, 1),
    Sketcher.Constraint("Coincident", 5, 2, 6, 1),
    Sketcher.Constraint("Coincident", 6, 2, 7, 1),
    Sketcher.Constraint("Coincident", 7, 2, 0, 1),
    Sketcher.Constraint("Vertical", 1),
    Sketcher.Constraint("Horizontal", 3),
    Sketcher.Constraint("Vertical", 5),
    Sketcher.Constraint("Horizontal", 7),
    Sketcher.Constraint("Symmetric", 0, 2, 4, 2, -1, 1),
    Sketcher.Constraint("Symmetric", 2, 2, 6, 2, -1, 1),
    Sketcher.Constraint("Perpendicular", 0, 2),
    Sketcher.Constraint("Perpendicular", 2, 4),
    Sketcher.Constraint("Perpendicular", 4, 6),
    Sketcher.Constraint("Horizontal", 1, 2, 4, 2),
    Sketcher.Constraint("Vertical", 3, 2, 6, 2),
    Sketcher.Constraint("Equal", 7, 1),
    Sketcher.Constraint("DistanceX", 3, 1, 3, 2, 95.8),
    Sketcher.Constraint("DistanceX", 1, 2, 2, 2, 10.0),
])
pad5 = body5.newObject("PartDesign::Pad", "Pad004")
pad5.Profile = sketch9
pad5.Length = 3.3

doc.recompute()
